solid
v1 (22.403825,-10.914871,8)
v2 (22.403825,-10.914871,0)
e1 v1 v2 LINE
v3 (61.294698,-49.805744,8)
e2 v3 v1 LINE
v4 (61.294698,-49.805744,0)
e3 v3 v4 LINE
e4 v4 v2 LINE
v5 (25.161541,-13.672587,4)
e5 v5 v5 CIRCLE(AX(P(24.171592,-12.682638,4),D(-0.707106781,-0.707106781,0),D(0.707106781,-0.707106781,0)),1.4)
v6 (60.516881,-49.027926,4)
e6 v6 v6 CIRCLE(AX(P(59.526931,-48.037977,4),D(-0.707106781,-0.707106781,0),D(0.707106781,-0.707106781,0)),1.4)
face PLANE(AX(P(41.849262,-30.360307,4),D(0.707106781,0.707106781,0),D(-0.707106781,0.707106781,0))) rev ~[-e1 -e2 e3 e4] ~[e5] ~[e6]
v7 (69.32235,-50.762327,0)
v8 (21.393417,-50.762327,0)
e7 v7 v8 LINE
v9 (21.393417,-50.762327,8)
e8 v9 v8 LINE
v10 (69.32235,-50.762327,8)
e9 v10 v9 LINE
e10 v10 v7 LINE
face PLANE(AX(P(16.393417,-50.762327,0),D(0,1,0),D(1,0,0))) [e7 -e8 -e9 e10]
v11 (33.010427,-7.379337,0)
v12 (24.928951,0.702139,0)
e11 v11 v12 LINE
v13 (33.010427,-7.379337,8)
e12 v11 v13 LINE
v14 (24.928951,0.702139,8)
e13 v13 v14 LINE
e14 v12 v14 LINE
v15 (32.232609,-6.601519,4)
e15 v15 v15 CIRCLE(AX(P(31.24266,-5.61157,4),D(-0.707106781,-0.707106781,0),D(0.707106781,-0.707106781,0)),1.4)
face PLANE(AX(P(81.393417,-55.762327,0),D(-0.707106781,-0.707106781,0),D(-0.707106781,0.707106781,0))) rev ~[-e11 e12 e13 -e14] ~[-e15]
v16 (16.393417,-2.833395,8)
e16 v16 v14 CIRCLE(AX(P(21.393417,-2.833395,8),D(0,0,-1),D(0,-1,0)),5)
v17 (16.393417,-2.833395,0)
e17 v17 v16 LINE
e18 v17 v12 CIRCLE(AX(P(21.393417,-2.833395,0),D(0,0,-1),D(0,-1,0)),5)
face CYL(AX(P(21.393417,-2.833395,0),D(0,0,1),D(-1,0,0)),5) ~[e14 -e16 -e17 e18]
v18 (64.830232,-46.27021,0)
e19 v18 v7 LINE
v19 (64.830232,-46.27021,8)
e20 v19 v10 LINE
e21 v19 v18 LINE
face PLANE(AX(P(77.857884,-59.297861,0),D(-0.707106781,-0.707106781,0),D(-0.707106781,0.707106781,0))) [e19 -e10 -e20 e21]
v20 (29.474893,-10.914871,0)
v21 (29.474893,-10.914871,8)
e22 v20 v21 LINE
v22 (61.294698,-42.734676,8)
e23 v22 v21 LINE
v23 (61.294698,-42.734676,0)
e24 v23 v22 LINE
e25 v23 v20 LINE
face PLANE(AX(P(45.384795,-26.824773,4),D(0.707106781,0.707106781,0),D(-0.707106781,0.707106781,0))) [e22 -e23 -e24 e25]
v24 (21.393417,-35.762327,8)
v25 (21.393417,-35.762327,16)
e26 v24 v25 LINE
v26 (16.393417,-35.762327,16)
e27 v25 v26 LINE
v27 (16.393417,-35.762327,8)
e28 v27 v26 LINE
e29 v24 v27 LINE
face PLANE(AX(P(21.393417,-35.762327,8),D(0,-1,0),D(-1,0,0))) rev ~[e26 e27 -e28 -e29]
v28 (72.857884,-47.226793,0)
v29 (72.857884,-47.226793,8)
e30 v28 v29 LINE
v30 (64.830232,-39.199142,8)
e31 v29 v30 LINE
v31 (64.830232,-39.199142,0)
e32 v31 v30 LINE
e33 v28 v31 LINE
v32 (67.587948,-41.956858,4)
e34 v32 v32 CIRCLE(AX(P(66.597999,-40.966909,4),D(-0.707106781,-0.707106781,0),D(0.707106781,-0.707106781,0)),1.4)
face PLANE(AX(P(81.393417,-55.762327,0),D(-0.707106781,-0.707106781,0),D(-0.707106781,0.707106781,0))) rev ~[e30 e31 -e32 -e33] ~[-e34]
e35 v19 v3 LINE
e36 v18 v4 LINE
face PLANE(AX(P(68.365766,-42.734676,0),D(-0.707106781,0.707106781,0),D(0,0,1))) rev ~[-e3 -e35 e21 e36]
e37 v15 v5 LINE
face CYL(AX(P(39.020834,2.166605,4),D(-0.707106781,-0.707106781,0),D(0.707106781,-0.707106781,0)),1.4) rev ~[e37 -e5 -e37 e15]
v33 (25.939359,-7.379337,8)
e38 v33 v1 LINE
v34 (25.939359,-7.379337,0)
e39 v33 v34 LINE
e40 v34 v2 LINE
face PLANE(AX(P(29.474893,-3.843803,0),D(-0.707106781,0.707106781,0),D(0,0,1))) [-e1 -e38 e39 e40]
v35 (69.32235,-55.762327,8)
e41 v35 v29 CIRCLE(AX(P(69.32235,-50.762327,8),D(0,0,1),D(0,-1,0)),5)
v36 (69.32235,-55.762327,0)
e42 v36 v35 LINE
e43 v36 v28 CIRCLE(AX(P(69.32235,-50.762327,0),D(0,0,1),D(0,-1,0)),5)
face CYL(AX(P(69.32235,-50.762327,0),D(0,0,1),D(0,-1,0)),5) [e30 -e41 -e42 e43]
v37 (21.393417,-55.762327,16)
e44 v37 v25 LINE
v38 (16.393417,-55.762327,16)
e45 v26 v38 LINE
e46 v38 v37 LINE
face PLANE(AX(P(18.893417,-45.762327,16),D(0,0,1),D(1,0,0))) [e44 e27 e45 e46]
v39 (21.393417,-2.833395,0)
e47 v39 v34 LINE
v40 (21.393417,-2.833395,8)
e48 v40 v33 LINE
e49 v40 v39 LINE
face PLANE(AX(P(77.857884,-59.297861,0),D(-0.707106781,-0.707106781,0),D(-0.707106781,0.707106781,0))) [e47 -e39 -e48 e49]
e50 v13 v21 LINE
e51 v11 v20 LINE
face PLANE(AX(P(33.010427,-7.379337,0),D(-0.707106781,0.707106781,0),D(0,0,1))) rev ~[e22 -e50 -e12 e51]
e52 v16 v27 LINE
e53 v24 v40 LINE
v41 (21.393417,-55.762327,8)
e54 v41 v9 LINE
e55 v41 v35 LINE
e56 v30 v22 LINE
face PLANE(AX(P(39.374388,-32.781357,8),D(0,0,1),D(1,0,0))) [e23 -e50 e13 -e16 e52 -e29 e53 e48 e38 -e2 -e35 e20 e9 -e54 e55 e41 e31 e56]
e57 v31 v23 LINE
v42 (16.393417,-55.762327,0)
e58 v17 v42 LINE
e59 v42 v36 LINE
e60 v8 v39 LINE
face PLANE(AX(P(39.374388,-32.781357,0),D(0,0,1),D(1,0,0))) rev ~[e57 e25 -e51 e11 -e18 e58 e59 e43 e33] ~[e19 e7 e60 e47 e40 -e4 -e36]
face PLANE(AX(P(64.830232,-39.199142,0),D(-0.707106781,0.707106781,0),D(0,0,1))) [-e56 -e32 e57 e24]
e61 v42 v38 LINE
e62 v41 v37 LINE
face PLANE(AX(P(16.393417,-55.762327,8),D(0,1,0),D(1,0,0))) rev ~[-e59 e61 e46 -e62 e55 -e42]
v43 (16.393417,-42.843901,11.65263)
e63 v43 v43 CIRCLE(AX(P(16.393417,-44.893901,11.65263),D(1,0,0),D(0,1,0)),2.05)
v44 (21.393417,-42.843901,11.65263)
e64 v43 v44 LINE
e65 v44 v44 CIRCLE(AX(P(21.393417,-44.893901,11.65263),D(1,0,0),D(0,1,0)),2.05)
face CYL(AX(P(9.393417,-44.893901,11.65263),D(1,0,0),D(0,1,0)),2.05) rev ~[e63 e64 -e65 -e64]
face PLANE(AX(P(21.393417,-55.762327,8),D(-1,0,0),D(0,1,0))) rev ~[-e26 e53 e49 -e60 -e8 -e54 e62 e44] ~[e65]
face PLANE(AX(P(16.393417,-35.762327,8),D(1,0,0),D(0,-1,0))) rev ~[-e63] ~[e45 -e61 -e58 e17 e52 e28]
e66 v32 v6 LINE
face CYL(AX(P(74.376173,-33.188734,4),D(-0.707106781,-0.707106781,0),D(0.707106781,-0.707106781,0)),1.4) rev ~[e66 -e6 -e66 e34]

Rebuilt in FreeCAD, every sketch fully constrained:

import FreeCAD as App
import Part
import Sketcher
Q = App.Units.Quantity


def edges_at(feature, points):
    """Names of the edges that pass closest to the given points."""
    edges = feature.Shape.Edges
    near = lambda p: min(range(len(edges)), key=lambda i: edges[i].distToShape(Part.Vertex(*p))[0])
    return sorted({f"Edge{near(p) + 1}" for p in points})


def faces_at(feature, points):
    """Names of the faces that lie closest to the given points."""
    faces = feature.Shape.Faces
    near = lambda p: min(range(len(faces)), key=lambda i: faces[i].distToShape(Part.Vertex(*p))[0])
    return sorted({f"Face{near(p) + 1}" for p in points})

doc = App.newDocument("Part")
body = doc.addObject("PartDesign::Body", "Body")

# Sketch on XY plane
sketch1 = doc.addObject("Sketcher::SketchObject", "Sketch")
body.addObject(sketch1)
sketch1.AttachmentSupport = (doc.XY_Plane, [""])
sketch1.MapMode = "FlatFace"
sketch1.addGeometry([
    Part.LineSegment(App.Vector(81, -56, 0), App.Vector(16, 9, 0)),
    Part.LineSegment(App.Vector(16, 9, 0), App.Vector(16, -56, 0)),
    Part.LineSegment(App.Vector(16, -56, 0), App.Vector(81, -56, 0)),
], False)
sketch1.addConstraint([
    Sketcher.Constraint("Coincident", 0, 2, 1, 1),
    Sketcher.Constraint("Coincident", 1, 2, 2, 1),
    Sketcher.Constraint("Coincident", 2, 2, 0, 1),
    Sketcher.Constraint("Vertical", 1),
    Sketcher.Constraint("Horizontal", 2),
    Sketcher.Constraint("Equal", 2, 1),
    Sketcher.Constraint("DistanceX", 2, 1, 2, 2, Q("65 mm")),
    Sketcher.Constraint("DistanceX", -1, 1, 0, 2, Q("16.393417 mm")),
    Sketcher.Constraint("DistanceY", -1, 1, 0, 2, Q("9.237673 mm")),
])
pad1 = doc.addObject("PartDesign::Pad", "Pad")
body.addObject(pad1)
pad1.Profile = sketch1
pad1.Length = 8

# Sketch on an angled plane
sketch2 = doc.addObject("Sketcher::SketchObject", "Sketch001")
body.addObject(sketch2)
sketch2.Placement = App.Placement(App.Vector(12.815545, 12.815545, 0), App.Rotation(App.Vector(-0.707106781, 0.707106781, 0), App.Vector(0, 0, 0.999999999), App.Vector(0.707106781, 0.707106781, 0), "ZXY"))
sketch2.addGeometry([
    Part.LineSegment(App.Vector(-74, 8, 0), App.Vector(-74, 0, 0)),
    Part.LineSegment(App.Vector(-74, 0, 0), App.Vector(-29, 0, 0)),
    Part.LineSegment(App.Vector(-29, 0, 0), App.Vector(-29, 8, 0)),
    Part.LineSegment(App.Vector(-29, 8, 0), App.Vector(-74, 8, 0)),
], False)
sketch2.addConstraint([
    Sketcher.Constraint("Coincident", 0, 2, 1, 1),
    Sketcher.Constraint("Coincident", 1, 2, 2, 1),
    Sketcher.Constraint("Coincident", 2, 2, 3, 1),
    Sketcher.Constraint("Coincident", 3, 2, 0, 1),
    Sketcher.Constraint("Vertical", 0),
    Sketcher.Constraint("Horizontal", 1),
    Sketcher.Constraint("Vertical", 2),
    Sketcher.Constraint("Horizontal", 3),
    Sketcher.Constraint("PointOnObject", 0, 2, -1),
    Sketcher.Constraint("DistanceX", 1, 1, 1, 2, Q("45 mm")),
    Sketcher.Constraint("DistanceY", 0, 2, 0, 1, Q("8 mm")),
    Sketcher.Constraint("DistanceX", 0, 2, -1, 1, Q("73.559876 mm")),
])
pocket1 = doc.addObject("PartDesign::Pocket", "Pocket")
body.addObject(pocket1)
pocket1.Profile = sketch2
pocket1.Length = 5
doc.recompute()

thickness = doc.addObject("PartDesign::Thickness", "Thickness")
body.addObject(thickness)
thickness.Base = (pocket1, faces_at(pocket1, [(35.893, -36.262, 8), (35.893, -36.262, 0)]))
thickness.Value = 5
thickness.Reversed = True
thickness.Join = "Intersection"

# Sketch on an angled plane
sketch3 = doc.addObject("Sketcher::SketchObject", "Sketch002")
body.addObject(sketch3)
sketch3.Placement = App.Placement(App.Vector(12.815545, 12.815545, 0), App.Rotation(App.Vector(-0.707106781, 0.707106781, 0), App.Vector(0, 0, 0.999999999), App.Vector(0.707106781, 0.707106781, 0), "ZXY"))
sketch3.addGeometry([
    Part.Circle(App.Vector(-26.1, 4, 0), App.Vector(0, 0, 1), 1.4),
    Part.Circle(App.Vector(-76.1, 4, 0), App.Vector(0, 0, 1), 1.4),
], False)
sketch3.addConstraint([
    Sketcher.Constraint("Equal", 0, 1),
    Sketcher.Constraint("Horizontal", 0, 3, 1, 3),
    Sketcher.Constraint("Diameter", 0, Q("2.8 mm")),
    Sketcher.Constraint("DistanceY", -1, 1, 0, 3, Q("4 mm")),
    Sketcher.Constraint("DistanceX", 1, 3, 0, 3, Q("50 mm")),
    Sketcher.Constraint("DistanceX", 0, 3, -1, 1, Q("26.059876 mm")),
])
doc.recompute()
hole = doc.addObject("PartDesign::Hole", "Hole")
body.addObject(hole)
hole.Profile = sketch3
hole.ThreadType = "None"
hole.Diameter = 2.8
hole.DepthType = "Dimension"
hole.Depth = 11
hole.DrillPoint = "Angled"
hole.DrillPointAngle = 118

# Sketch on XY plane
sketch4 = doc.addObject("Sketcher::SketchObject", "Sketch003")
body.addObject(sketch4)
sketch4.AttachmentSupport = (doc.XY_Plane, [""])
sketch4.MapMode = "FlatFace"
sketch4.AttachmentOffset = App.Placement(App.Vector(0, 0, 8), App.Rotation())
sketch4.addGeometry([
    Part.LineSegment(App.Vector(21, -36, 0), App.Vector(16, -36, 0)),
    Part.LineSegment(App.Vector(16, -36, 0), App.Vector(16, -56, 0)),
    Part.LineSegment(App.Vector(16, -56, 0), App.Vector(21, -56, 0)),
    Part.LineSegment(App.Vector(21, -56, 0), App.Vector(21, -36, 0)),
], False)
sketch4.addConstraint([
    Sketcher.Constraint("Coincident", 0, 2, 1, 1),
    Sketcher.Constraint("Coincident", 1, 2, 2, 1),
    Sketcher.Constraint("Coincident", 2, 2, 3, 1),
    Sketcher.Constraint("Coincident", 3, 2, 0, 1),
    Sketcher.Constraint("Horizontal", 0),
    Sketcher.Constraint("Vertical", 1),
    Sketcher.Constraint("Horizontal", 2),
    Sketcher.Constraint("Vertical", 3),
    Sketcher.Constraint("DistanceX", 0, 2, 0, 1, Q("5 mm")),
    Sketcher.Constraint("DistanceY", 1, 2, 1, 1, Q("20 mm")),
    Sketcher.Constraint("DistanceX", -1, 1, 0, 2, Q("16.393417 mm")),
    Sketcher.Constraint("DistanceY", 0, 2, -1, 1, Q("35.762327 mm")),
])
pad2 = doc.addObject("PartDesign::Pad", "Pad001")
body.addObject(pad2)
pad2.Profile = sketch4
pad2.Length = 8

# Sketch on YZ plane
sketch5 = doc.addObject("Sketcher::SketchObject", "Sketch004")
body.addObject(sketch5)
sketch5.AttachmentSupport = (doc.YZ_Plane, [""])
sketch5.MapMode = "FlatFace"
sketch5.AttachmentOffset = App.Placement(App.Vector(0, 0, 16.393417), App.Rotation())
sketch5.addGeometry(Part.Circle(App.Vector(-44.9, 11.7, 0), App.Vector(0, 0, 1), 2), False)
sketch5.addConstraint([
    Sketcher.Constraint("Diameter", 0, Q("4.1 mm")),
    Sketcher.Constraint("DistanceX", 0, 3, -1, 1, Q("44.893901 mm")),
    Sketcher.Constraint("DistanceY", -1, 1, 0, 3, Q("11.65263 mm")),
])
doc.recompute()
hole2 = doc.addObject("PartDesign::Hole", "Hole001")
body.addObject(hole2)
hole2.Profile = sketch5
hole2.ThreadType = "None"
hole2.Diameter = 4.1
hole2.DepthType = "Dimension"
hole2.Depth = 7
hole2.DrillPoint = "Angled"
hole2.DrillPointAngle = 118
hole2.Reversed = True
doc.recompute()

fillet = doc.addObject("PartDesign::Fillet", "Fillet")
body.addObject(fillet)
fillet.Base = (hole2, edges_at(hole2, [(16.393, 9.238, 4), (81.393, -55.762, 4)]))
fillet.Radius = 5

doc.recompute()
